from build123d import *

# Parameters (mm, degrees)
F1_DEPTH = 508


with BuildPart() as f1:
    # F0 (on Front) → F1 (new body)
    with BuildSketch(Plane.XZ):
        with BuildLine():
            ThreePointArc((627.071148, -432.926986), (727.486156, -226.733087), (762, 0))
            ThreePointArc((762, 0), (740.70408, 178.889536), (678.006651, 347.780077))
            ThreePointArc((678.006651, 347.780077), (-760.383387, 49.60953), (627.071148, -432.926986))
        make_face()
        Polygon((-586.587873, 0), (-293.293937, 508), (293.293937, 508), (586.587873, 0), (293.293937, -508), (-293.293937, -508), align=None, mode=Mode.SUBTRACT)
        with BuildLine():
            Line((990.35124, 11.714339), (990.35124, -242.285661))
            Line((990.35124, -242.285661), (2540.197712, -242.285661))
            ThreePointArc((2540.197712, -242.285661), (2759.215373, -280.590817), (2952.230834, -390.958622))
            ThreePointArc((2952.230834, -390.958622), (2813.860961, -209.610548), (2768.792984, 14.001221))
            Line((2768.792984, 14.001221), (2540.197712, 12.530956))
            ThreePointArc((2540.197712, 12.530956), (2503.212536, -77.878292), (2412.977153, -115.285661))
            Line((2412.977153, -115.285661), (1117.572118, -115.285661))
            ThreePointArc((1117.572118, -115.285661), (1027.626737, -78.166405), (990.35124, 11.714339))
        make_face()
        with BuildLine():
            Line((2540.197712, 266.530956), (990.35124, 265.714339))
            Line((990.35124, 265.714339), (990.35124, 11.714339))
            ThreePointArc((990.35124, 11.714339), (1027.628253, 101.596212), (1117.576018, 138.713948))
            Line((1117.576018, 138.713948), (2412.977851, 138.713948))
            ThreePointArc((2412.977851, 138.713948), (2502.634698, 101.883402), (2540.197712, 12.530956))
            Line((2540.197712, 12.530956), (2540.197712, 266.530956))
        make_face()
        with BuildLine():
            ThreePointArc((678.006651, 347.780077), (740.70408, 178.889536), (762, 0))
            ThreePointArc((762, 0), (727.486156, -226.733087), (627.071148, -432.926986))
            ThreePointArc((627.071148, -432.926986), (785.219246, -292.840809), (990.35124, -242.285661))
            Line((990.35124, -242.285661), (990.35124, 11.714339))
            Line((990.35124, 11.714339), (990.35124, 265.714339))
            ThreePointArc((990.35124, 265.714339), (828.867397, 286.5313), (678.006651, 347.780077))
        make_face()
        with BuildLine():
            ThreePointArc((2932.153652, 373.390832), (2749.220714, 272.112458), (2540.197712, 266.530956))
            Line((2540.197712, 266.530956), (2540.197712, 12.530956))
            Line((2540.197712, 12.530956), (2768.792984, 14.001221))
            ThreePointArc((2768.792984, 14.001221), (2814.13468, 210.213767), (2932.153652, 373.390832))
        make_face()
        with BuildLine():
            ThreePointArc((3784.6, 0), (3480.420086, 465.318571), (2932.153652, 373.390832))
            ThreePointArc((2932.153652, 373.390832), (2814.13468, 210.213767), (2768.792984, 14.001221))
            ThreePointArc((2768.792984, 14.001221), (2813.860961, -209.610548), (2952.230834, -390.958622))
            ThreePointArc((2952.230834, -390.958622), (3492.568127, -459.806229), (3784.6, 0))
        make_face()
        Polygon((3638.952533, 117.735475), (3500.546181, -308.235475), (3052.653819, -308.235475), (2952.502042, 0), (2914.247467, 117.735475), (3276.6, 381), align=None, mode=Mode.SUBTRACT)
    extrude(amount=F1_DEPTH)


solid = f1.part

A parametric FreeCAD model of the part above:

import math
import FreeCAD as App
import Part
import Sketcher
Q = App.Units.Quantity


def add_polygon(sketch, points):
    """Adds a closed chain of lines whose ends are joined by coincident constraints."""
    first, n = sketch.GeometryCount, len(points)
    for a, b in zip(points, points[1:] + points[:1]):
        sketch.addGeometry(Part.LineSegment(App.Vector(*a, 0), App.Vector(*b, 0)), False)
    for i in range(n):
        sketch.addConstraint(Sketcher.Constraint("Coincident", first + i, 2, first + (i + 1) % n, 1))

doc = App.newDocument("Part")
body = doc.addObject("PartDesign::Body", "Body")

# Sketch on XZ plane
sketch1 = body.newObject("Sketcher::SketchObject", "Sketch")
sketch1.AttachmentSupport = (doc.getObject("XZ_Plane"), [""])
sketch1.MapMode = "FlatFace"
sketch1.addGeometry(Part.ArcOfCircle(Part.Circle(App.Vector(2633.278835, 697.38067, 0), App.Vector(0, 0, 1), 440.789713), math.radians(-102.190867), math.radians(-47.309018)), False)  # 0
sketch1.addGeometry(Part.LineSegment(App.Vector(2540.197712, 266.530956, 0), App.Vector(990.35124, 265.714339, 0)), False)  # 1
sketch1.addGeometry(Part.ArcOfCircle(Part.Circle(App.Vector(990.017098, 899.871757, 0), App.Vector(0, 0, 1), 634.157506), math.radians(-119.472635), math.radians(-89.96981)), False)  # 2
sketch1.addGeometry(Part.ArcOfCircle(Part.Circle(App.Vector(0, 0.000001, 0), App.Vector(0, 0, 1), 762), math.radians(27.155326), math.radians(325.378983)), False)  # 3
sketch1.addGeometry(Part.ArcOfCircle(Part.Circle(App.Vector(990.351242, -683.733865, 0), App.Vector(0, 0, 1), 441.448204), math.radians(90), math.radians(145.378982)), False)  # 4
sketch1.addGeometry(Part.LineSegment(App.Vector(990.35124, -242.285661, 0), App.Vector(2540.197712, -242.285661, 0)), False)  # 5
sketch1.addGeometry(Part.ArcOfCircle(Part.Circle(App.Vector(2540.197711, -887.577658, 0), App.Vector(0, 0, 1), 645.291997), math.radians(50.318305), math.radians(90)), False)  # 6
sketch1.addGeometry(Part.ArcOfCircle(Part.Circle(App.Vector(3276.6, 0, 0), App.Vector(0, 0, 1), 508), math.radians(-129.681695), math.radians(0)), False)  # 7
sketch1.addGeometry(Part.ArcOfCircle(Part.Circle(App.Vector(3276.6, 0, 0), App.Vector(0, 0, 1), 508), math.radians(0), math.radians(132.690982)), False)  # 8
add_polygon(sketch1, [(-293.293937, -508), (-586.587873, 0), (-293.293937, 508), (293.293937, 508), (586.587873, 0), (293.293937, -508)])  # lines 9-14
sketch1.addGeometry(Part.ArcOfCircle(Part.Circle(App.Vector(2413.200338, 11.714142, 0), App.Vector(0, 0, 1), 127.000001), math.radians(0.368506), math.radians(90.100375)), False)  # 15
sketch1.addGeometry(Part.ArcOfCircle(Part.Circle(App.Vector(2413.200339, 11.714142, 0), App.Vector(0, 0, 1), 127), math.radians(-90.10069), math.radians(0.368506)), False)  # 16
sketch1.addGeometry(Part.LineSegment(App.Vector(2412.977153, -115.285661, 0), App.Vector(1117.572118, -115.285661, 0)), False)  # 17
sketch1.addGeometry(Part.ArcOfCircle(Part.Circle(App.Vector(1117.351239, 11.714146, 0), App.Vector(0, 0, 1), 126.999999), math.radians(179.999913), math.radians(270.099649)), False)  # 18
sketch1.addGeometry(Part.ArcOfCircle(Part.Circle(App.Vector(1117.35124, 11.714147, 0), App.Vector(0, 0, 1), 127), math.radians(89.898592), math.radians(179.999913)), False)  # 19
sketch1.addGeometry(Part.LineSegment(App.Vector(1117.576018, 138.713948, 0), App.Vector(2412.977851, 138.713948, 0)), False)  # 20
add_polygon(sketch1, [(3276.6, 381), (3638.952533, 117.735475), (3500.546181, -308.235475), (3052.653819, -308.235475), (2952.502042, 0), (2914.247467, 117.735475)])  # lines 21-26
sketch1.addConstraint(Sketcher.Constraint("Coincident", 0, 1, 1, 1))
sketch1.addConstraint(Sketcher.Constraint("Tangent", 1, 2, 2, 2))
sketch1.addConstraint(Sketcher.Constraint("Coincident", 2, 1, 3, 1))
sketch1.addConstraint(Sketcher.Constraint("Tangent", 3, 2, 4, 2))
sketch1.addConstraint(Sketcher.Constraint("Tangent", 4, 1, 5, 1))
sketch1.addConstraint(Sketcher.Constraint("Tangent", 5, 2, 6, 2))
sketch1.addConstraint(Sketcher.Constraint("Tangent", 6, 1, 7, 1))
sketch1.addConstraint(Sketcher.Constraint("Coincident", 7, 2, 8, 1))
sketch1.addConstraint(Sketcher.Constraint("Tangent", 8, 2, 0, 2))
sketch1.addConstraint(Sketcher.Constraint("Tangent", 15, 1, 16, 2))
sketch1.addConstraint(Sketcher.Constraint("Coincident", 16, 1, 17, 1))
sketch1.addConstraint(Sketcher.Constraint("Coincident", 17, 2, 18, 2))
sketch1.addConstraint(Sketcher.Constraint("Tangent", 18, 1, 19, 2))
sketch1.addConstraint(Sketcher.Constraint("Coincident", 19, 1, 20, 1))
sketch1.addConstraint(Sketcher.Constraint("Coincident", 20, 2, 15, 2))
sketch1.addConstraint(Sketcher.Constraint("Horizontal", 5))
sketch1.addConstraint(Sketcher.Constraint("Horizontal", 11))
sketch1.addConstraint(Sketcher.Constraint("Horizontal", 14))
sketch1.addConstraint(Sketcher.Constraint("Horizontal", 17))
sketch1.addConstraint(Sketcher.Constraint("Horizontal", 20))
sketch1.addConstraint(Sketcher.Constraint("Horizontal", 23))
sketch1.addConstraint(Sketcher.Constraint("Coincident", 3, 3, -1, 1))
sketch1.addConstraint(Sketcher.Constraint("Coincident", 8, 3, 7, 3))
sketch1.addConstraint(Sketcher.Constraint("Equal", 15, 16))
sketch1.addConstraint(Sketcher.Constraint("Equal", 16, 18))
sketch1.addConstraint(Sketcher.Constraint("Equal", 18, 19))
sketch1.addConstraint(Sketcher.Constraint("Symmetric", 9, 2, 12, 2, -1, 1))
sketch1.addConstraint(Sketcher.Constraint("Symmetric", 10, 2, 13, 2, -1, 1))
sketch1.addConstraint(Sketcher.Constraint("PointOnObject", 7, 3, -1))
sketch1.addConstraint(Sketcher.Constraint("PointOnObject", 7, 2, -1))
sketch1.addConstraint(Sketcher.Constraint("PointOnObject", 9, 2, -1))
sketch1.addConstraint(Sketcher.Constraint("PointOnObject", 24, 2, -1))
sketch1.addConstraint(Sketcher.Constraint("Parallel", 9, 12))
sketch1.addConstraint(Sketcher.Constraint("Parallel", 24, 25))
sketch1.addConstraint(Sketcher.Constraint("Horizontal", 21, 2, 25, 2))
sketch1.addConstraint(Sketcher.Constraint("Vertical", 6, 3, 0, 1))
sketch1.addConstraint(Sketcher.Constraint("Vertical", 4, 3, 1, 2))
sketch1.addConstraint(Sketcher.Constraint("Vertical", 11, 2, 13, 2))
sketch1.addConstraint(Sketcher.Constraint("Vertical", 5, 2, 15, 1))
sketch1.addConstraint(Sketcher.Constraint("Vertical", 8, 3, 26, 2))
sketch1.addConstraint(Sketcher.Constraint("Equal", 21, 22))
sketch1.addConstraint(Sketcher.Constraint("Equal", 22, 26))
sketch1.addConstraint(Sketcher.Constraint("Radius", 3, Q("30 in")))
sketch1.addConstraint(Sketcher.Constraint("Radius", 7, Q("20 in")))
sketch1.addConstraint(Sketcher.Constraint("Radius", 15, Q("5 in")))
sketch1.addConstraint(Sketcher.Constraint("DistanceX", -1, 1, 7, 3, Q("129 in")))
sketch1.addConstraint(Sketcher.Constraint("DistanceY", -1, 1, 10, 2, Q("20 in")))
sketch1.addConstraint(Sketcher.Constraint("DistanceY", -1, 1, 26, 2, Q("15 in")))
sketch1.addConstraint(Sketcher.Constraint("Angle", 9, Q("120 deg")))
sketch1.addConstraint(Sketcher.Constraint("Angle", 21, Q("-36 deg")))
sketch1.addConstraint(Sketcher.Constraint("Angle", 22, Q("-108 deg")))
sketch1.addConstraint(Sketcher.Constraint("Angle", 24, Q("108 deg")))
sketch1.addConstraint(Sketcher.Constraint("DistanceX", 4, 3, 18, 3, Q("4.9999999 in")))
sketch1.addConstraint(Sketcher.Constraint("DistanceY", 4, 1, 1, 2, Q("20 in")))
sketch1.addConstraint(Sketcher.Constraint("DistanceY", 15, 1, 0, 1, Q("10 in")))
sketch1.addConstraint(Sketcher.Constraint("DistanceY", 5, 2, 16, 1, Q("5 in")))
sketch1.addConstraint(Sketcher.Constraint("DistanceY", 17, 2, 18, 1, Q("5 in")))
sketch1.addConstraint(Sketcher.Constraint("Radius", 0, Q("440.789713 mm")))
sketch1.addConstraint(Sketcher.Constraint("Radius", 2, Q("634.157506 mm")))
sketch1.addConstraint(Sketcher.Constraint("Radius", 4, Q("441.448204 mm")))
sketch1.addConstraint(Sketcher.Constraint("Radius", 6, Q("645.291997 mm")))
sketch1.addConstraint(Sketcher.Constraint("DistanceX", -1, 1, 2, 3, Q("990.017098 mm")))
sketch1.addConstraint(Sketcher.Constraint("DistanceX", 18, 3, 15, 3, Q("1295.849098 mm")))
sketch1.addConstraint(Sketcher.Constraint("DistanceX", 17, 2, 19, 1, Q("0.0039 mm")))
sketch1.addConstraint(Sketcher.Constraint("DistanceX", 16, 1, 20, 2, Q("0.000698 mm")))
sketch1.addConstraint(Sketcher.Constraint("Distance", 24, Q("324.097958 mm")))
sketch1.addConstraint(Sketcher.Constraint("DistanceX", 11, 1, 11, 2, Q("586.587874 mm")))
sketch1.addConstraint(Sketcher.Constraint("DistanceX", 17, 2, 17, 1, Q("1295.405035 mm")))
pad1 = body.newObject("PartDesign::Pad", "Pad")
pad1.Profile = sketch1
pad1.Length = Q("20 in")

doc.recompute()
